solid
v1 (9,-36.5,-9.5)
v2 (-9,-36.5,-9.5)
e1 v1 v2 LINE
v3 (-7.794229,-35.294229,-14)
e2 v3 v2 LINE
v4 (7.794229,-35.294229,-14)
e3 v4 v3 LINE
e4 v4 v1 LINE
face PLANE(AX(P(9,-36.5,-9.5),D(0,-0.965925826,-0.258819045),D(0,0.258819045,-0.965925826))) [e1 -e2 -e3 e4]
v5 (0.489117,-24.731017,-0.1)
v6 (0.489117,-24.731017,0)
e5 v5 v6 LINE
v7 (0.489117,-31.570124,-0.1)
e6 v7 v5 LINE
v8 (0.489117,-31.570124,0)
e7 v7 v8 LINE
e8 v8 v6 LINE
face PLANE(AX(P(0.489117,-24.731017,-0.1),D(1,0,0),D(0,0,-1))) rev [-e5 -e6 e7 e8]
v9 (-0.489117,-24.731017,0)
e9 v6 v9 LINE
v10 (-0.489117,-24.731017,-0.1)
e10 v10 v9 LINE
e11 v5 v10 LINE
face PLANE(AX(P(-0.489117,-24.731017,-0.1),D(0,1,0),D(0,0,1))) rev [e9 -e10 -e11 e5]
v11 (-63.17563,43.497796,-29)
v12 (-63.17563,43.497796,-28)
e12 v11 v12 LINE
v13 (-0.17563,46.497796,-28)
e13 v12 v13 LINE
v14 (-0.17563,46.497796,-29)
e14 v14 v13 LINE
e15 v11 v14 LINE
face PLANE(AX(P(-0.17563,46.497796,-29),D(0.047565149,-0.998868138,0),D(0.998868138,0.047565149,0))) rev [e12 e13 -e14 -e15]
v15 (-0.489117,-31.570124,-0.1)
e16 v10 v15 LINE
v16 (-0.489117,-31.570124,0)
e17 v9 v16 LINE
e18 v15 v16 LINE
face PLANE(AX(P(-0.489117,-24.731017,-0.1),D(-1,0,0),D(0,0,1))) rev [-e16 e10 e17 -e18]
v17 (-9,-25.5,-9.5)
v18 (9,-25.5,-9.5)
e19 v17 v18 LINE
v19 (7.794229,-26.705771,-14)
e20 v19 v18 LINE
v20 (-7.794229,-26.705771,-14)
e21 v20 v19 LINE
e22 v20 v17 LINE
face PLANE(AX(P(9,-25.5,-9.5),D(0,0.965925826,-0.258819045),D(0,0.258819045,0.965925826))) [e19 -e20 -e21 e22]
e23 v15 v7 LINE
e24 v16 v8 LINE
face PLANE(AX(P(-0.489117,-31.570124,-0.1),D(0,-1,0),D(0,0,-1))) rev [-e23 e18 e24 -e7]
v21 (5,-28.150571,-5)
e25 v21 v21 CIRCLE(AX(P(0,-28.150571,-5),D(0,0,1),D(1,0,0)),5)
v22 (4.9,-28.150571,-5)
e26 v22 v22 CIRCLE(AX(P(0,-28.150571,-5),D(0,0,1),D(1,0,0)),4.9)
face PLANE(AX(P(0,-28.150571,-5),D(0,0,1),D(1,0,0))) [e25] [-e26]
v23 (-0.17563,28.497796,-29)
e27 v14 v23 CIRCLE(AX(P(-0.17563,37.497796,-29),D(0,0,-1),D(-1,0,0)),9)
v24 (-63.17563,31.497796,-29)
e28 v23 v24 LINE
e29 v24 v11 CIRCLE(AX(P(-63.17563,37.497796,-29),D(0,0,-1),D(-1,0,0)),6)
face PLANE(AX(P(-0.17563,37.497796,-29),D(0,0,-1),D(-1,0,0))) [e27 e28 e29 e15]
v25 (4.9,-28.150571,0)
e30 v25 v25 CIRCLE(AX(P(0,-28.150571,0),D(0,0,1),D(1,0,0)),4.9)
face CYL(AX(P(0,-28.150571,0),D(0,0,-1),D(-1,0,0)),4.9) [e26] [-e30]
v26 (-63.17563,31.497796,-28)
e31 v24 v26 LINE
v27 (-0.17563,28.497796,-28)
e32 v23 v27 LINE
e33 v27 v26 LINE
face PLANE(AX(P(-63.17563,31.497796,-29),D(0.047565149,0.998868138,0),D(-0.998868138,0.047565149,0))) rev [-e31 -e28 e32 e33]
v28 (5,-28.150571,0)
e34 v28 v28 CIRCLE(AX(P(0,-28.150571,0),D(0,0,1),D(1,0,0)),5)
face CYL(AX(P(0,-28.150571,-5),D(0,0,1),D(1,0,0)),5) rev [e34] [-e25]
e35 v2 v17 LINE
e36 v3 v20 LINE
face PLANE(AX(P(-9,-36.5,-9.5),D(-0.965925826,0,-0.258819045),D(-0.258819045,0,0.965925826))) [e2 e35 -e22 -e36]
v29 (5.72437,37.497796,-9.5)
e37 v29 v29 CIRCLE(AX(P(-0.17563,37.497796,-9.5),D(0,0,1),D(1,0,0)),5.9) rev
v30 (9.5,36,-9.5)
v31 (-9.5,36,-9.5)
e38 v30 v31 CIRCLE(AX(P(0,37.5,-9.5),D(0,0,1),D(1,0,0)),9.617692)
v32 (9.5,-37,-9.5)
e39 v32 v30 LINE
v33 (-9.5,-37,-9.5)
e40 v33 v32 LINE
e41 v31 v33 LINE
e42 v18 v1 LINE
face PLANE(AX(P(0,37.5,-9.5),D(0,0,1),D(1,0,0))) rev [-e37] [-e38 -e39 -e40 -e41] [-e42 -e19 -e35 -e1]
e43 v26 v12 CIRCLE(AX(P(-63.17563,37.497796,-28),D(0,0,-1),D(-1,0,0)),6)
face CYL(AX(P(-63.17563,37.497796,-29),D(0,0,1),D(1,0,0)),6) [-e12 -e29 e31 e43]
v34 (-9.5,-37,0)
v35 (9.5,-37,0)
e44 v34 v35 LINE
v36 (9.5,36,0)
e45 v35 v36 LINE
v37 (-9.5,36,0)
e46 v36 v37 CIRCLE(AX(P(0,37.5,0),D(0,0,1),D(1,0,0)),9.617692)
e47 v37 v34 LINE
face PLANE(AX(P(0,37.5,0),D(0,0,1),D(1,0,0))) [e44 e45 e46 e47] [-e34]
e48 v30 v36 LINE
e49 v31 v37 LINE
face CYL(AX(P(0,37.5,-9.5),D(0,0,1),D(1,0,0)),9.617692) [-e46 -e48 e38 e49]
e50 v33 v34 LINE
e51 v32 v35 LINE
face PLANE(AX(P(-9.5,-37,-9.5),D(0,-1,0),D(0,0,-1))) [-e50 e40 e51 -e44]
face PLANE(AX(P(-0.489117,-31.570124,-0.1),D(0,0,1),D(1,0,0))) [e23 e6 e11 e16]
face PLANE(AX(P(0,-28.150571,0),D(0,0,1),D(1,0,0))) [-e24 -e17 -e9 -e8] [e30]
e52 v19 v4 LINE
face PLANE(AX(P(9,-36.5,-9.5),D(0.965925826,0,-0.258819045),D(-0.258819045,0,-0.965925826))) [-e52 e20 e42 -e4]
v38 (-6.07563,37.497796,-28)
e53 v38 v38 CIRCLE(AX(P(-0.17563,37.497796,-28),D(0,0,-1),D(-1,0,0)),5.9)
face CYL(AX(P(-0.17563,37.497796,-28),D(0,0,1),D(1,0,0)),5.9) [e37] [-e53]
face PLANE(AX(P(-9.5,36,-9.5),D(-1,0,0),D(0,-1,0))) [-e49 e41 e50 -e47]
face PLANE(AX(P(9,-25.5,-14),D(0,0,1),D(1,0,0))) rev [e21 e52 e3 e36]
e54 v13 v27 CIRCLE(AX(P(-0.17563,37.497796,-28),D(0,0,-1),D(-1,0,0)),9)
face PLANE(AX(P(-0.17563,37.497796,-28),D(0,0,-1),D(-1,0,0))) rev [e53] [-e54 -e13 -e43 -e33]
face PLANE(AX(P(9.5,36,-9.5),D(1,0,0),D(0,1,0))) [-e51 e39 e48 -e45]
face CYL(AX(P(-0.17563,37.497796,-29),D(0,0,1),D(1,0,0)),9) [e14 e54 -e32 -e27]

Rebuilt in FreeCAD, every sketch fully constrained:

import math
import FreeCAD as App
import Part
import Sketcher

V = App.Vector

doc = App.newDocument("Part")
body = doc.addObject("PartDesign::Body", "Body")

sketch1 = doc.addObject("Sketcher::SketchObject", "Sketch")
body.addObject(sketch1)
sketch1.AttachmentSupport = (doc.XY_Plane, [""])
sketch1.MapMode = "FlatFace"
sketch1.addGeometry(Part.LineSegment(V(-9.5, 36, 0), V(-9.5, -37, 0)), False)
sketch1.addGeometry(Part.LineSegment(V(-9.5, -37, 0), V(9.5, -37, 0)), False)
sketch1.addGeometry(Part.LineSegment(V(9.5, -37, 0), V(9.5, 36, 0)), False)
sketch1.addGeometry(Part.ArcOfCircle(Part.Circle(V(0, 37.5, 0), V(0, 0, 1), 9.617692), math.radians(-8.972627), math.radians(188.972627)), False)
sketch1.addConstraint(Sketcher.Constraint("Coincident", 0, 2, 1, 1))
sketch1.addConstraint(Sketcher.Constraint("Coincident", 1, 2, 2, 1))
sketch1.addConstraint(Sketcher.Constraint("Coincident", 2, 2, 3, 1))
sketch1.addConstraint(Sketcher.Constraint("Coincident", 3, 2, 0, 1))
sketch1.addConstraint(Sketcher.Constraint("Vertical", 0))
sketch1.addConstraint(Sketcher.Constraint("Horizontal", 1))
sketch1.addConstraint(Sketcher.Constraint("Vertical", 2))
sketch1.addConstraint(Sketcher.Constraint("Symmetric", 2, 2, 3, 2, -2))
sketch1.addConstraint(Sketcher.Constraint("DistanceX", 1, 1, 1, 2, 19.0))
sketch1.addConstraint(Sketcher.Constraint("DistanceY", 0, 2, 0, 1, 73.0))
sketch1.addConstraint(Sketcher.Constraint("DistanceY", 0, 2, -1, 1, 37.0))
sketch1.addConstraint(Sketcher.Constraint("DistanceY", -1, 1, 3, 3, 37.5))
pad1 = doc.addObject("PartDesign::Pad", "Pad")
body.addObject(pad1)
pad1.Profile = sketch1
pad1.Length = 9.5
pad1.Reversed = True

sketch2 = doc.addObject("Sketcher::SketchObject", "Sketch001")
body.addObject(sketch2)
sketch2.AttachmentSupport = (doc.XY_Plane, [""])
sketch2.MapMode = "FlatFace"
sketch2.AttachmentOffset = App.Placement(V(0, 0, -9.5), App.Rotation())
sketch2.addGeometry(Part.LineSegment(V(9, -25.5, 0), V(9, -36.5, 0)), False)
sketch2.addGeometry(Part.LineSegment(V(9, -36.5, 0), V(-9, -36.5, 0)), False)
sketch2.addGeometry(Part.LineSegment(V(-9, -36.5, 0), V(-9, -25.5, 0)), False)
sketch2.addGeometry(Part.LineSegment(V(-9, -25.5, 0), V(9, -25.5, 0)), False)
sketch2.addConstraint(Sketcher.Constraint("Coincident", 0, 2, 1, 1))
sketch2.addConstraint(Sketcher.Constraint("Coincident", 1, 2, 2, 1))
sketch2.addConstraint(Sketcher.Constraint("Coincident", 2, 2, 3, 1))
sketch2.addConstraint(Sketcher.Constraint("Coincident", 3, 2, 0, 1))
sketch2.addConstraint(Sketcher.Constraint("Vertical", 0))
sketch2.addConstraint(Sketcher.Constraint("Horizontal", 1))
sketch2.addConstraint(Sketcher.Constraint("Vertical", 2))
sketch2.addConstraint(Sketcher.Constraint("Horizontal", 3))
sketch2.addConstraint(Sketcher.Constraint("DistanceX", 1, 2, 1, 1, 18.0))
sketch2.addConstraint(Sketcher.Constraint("DistanceY", 0, 2, 0, 1, 11.0))
sketch2.addConstraint(Sketcher.Constraint("DistanceX", -1, 1, 0, 2, 9.0))
sketch2.addConstraint(Sketcher.Constraint("DistanceY", 0, 2, -1, 1, 36.5))
pad2 = doc.addObject("PartDesign::Pad", "Pad001")
body.addObject(pad2)
pad2.Profile = sketch2
pad2.Length = 4.5
pad2.Reversed = True
pad2.TaperAngle = -15

sketch3 = doc.addObject("Sketcher::SketchObject", "Sketch002")
body.addObject(sketch3)
sketch3.AttachmentSupport = (doc.XY_Plane, [""])
sketch3.MapMode = "FlatFace"
sketch3.addGeometry(Part.Circle(V(0, -28.150571, 0), V(0, 0, 1), 5), False)
sketch3.addConstraint(Sketcher.Constraint("PointOnObject", 0, 3, -2))
sketch3.addConstraint(Sketcher.Constraint("Diameter", 0, 10.0))
sketch3.addConstraint(Sketcher.Constraint("DistanceY", 0, 3, -1, 1, 28.150571))
pocket1 = doc.addObject("PartDesign::Pocket", "Pocket")
body.addObject(pocket1)
pocket1.Profile = sketch3
pocket1.Length = 5

sketch4 = doc.addObject("Sketcher::SketchObject", "Sketch003")
body.addObject(sketch4)
sketch4.AttachmentSupport = (doc.XY_Plane, [""])
sketch4.MapMode = "FlatFace"
sketch4.AttachmentOffset = App.Placement(V(0, 0, -5), App.Rotation())
sketch4.addGeometry(Part.Circle(V(0, -28.150571, 0), V(0, 0, 1), 4.9), False)
sketch4.addConstraint(Sketcher.Constraint("PointOnObject", 0, 3, -2))
sketch4.addConstraint(Sketcher.Constraint("Diameter", 0, 9.8))
sketch4.addConstraint(Sketcher.Constraint("DistanceY", 0, 3, -1, 1, 28.150571))
pad3 = doc.addObject("PartDesign::Pad", "Pad002")
body.addObject(pad3)
pad3.Profile = sketch4
pad3.Length = 5

sketch5 = doc.addObject("Sketcher::SketchObject", "Sketch004")
body.addObject(sketch5)
sketch5.AttachmentSupport = (doc.XY_Plane, [""])
sketch5.MapMode = "FlatFace"
sketch5.addGeometry(Part.LineSegment(V(-0.489117, -24.731017, 0), V(-0.489117, -31.570124, 0)), False)
sketch5.addGeometry(Part.LineSegment(V(-0.489117, -31.570124, 0), V(0.489117, -31.570124, 0)), False)
sketch5.addGeometry(Part.LineSegment(V(0.489117, -31.570124, 0), V(0.489117, -24.731017, 0)), False)
sketch5.addGeometry(Part.LineSegment(V(0.489117, -24.731017, 0), V(-0.489117, -24.731017, 0)), False)
sketch5.addConstraint(Sketcher.Constraint("Coincident", 0, 2, 1, 1))
sketch5.addConstraint(Sketcher.Constraint("Coincident", 1, 2, 2, 1))
sketch5.addConstraint(Sketcher.Constraint("Coincident", 2, 2, 3, 1))
sketch5.addConstraint(Sketcher.Constraint("Coincident", 3, 2, 0, 1))
sketch5.addConstraint(Sketcher.Constraint("Vertical", 0))
sketch5.addConstraint(Sketcher.Constraint("Horizontal", 1))
sketch5.addConstraint(Sketcher.Constraint("Vertical", 2))
sketch5.addConstraint(Sketcher.Constraint("Horizontal", 3))
sketch5.addConstraint(Sketcher.Constraint("DistanceX", 1, 1, 1, 2, 0.978235))
sketch5.addConstraint(Sketcher.Constraint("DistanceY", 0, 2, 0, 1, 6.839107))
sketch5.addConstraint(Sketcher.Constraint("DistanceX", 0, 2, -1, 1, 0.489117))
sketch5.addConstraint(Sketcher.Constraint("DistanceY", 0, 2, -1, 1, 31.570124))
pocket2 = doc.addObject("PartDesign::Pocket", "Pocket001")
body.addObject(pocket2)
pocket2.Profile = sketch5
pocket2.Length = 0.1

sketch6 = doc.addObject("Sketcher::SketchObject", "Sketch005")
body.addObject(sketch6)
sketch6.AttachmentSupport = (doc.XY_Plane, [""])
sketch6.MapMode = "FlatFace"
sketch6.AttachmentOffset = App.Placement(V(0, 0, -9.5), App.Rotation())
sketch6.addGeometry(Part.Circle(V(-0.17563, 37.497796, 0), V(0, 0, 1), 5.9), False)
sketch6.addConstraint(Sketcher.Constraint("Diameter", 0, 11.8))
sketch6.addConstraint(Sketcher.Constraint("DistanceX", 0, 3, -1, 1, 0.17563))
sketch6.addConstraint(Sketcher.Constraint("DistanceY", -1, 1, 0, 3, 37.497796))
pad4 = doc.addObject("PartDesign::Pad", "Pad003")
body.addObject(pad4)
pad4.Profile = sketch6
pad4.Length = 18.5
pad4.Reversed = True

sketch7 = doc.addObject("Sketcher::SketchObject", "Sketch006")
body.addObject(sketch7)
sketch7.AttachmentSupport = (doc.XY_Plane, [""])
sketch7.MapMode = "FlatFace"
sketch7.AttachmentOffset = App.Placement(V(0, 0, -28), App.Rotation())
sketch7.addGeometry(Part.LineSegment(V(-63.17563, 43.497796, 0), V(-0.17563, 46.497796, 0)), False)
sketch7.addGeometry(Part.ArcOfCircle(Part.Circle(V(-0.17563, 37.497796, 0), V(0, 0, 1), 9), math.radians(-90), math.radians(90)), False)
sketch7.addGeometry(Part.LineSegment(V(-0.17563, 28.497796, 0), V(-63.17563, 31.497796, 0)), False)
sketch7.addGeometry(Part.ArcOfCircle(Part.Circle(V(-63.17563, 37.497796, 0), V(0, 0, 1), 6), math.radians(90), math.radians(270)), False)
sketch7.addConstraint(Sketcher.Constraint("Coincident", 0, 2, 1, 2))
sketch7.addConstraint(Sketcher.Constraint("Coincident", 1, 1, 2, 1))
sketch7.addConstraint(Sketcher.Constraint("Coincident", 2, 2, 3, 2))
sketch7.addConstraint(Sketcher.Constraint("Coincident", 3, 1, 0, 1))
sketch7.addConstraint(Sketcher.Constraint("Horizontal", 1, 3, 3, 3))
sketch7.addConstraint(Sketcher.Constraint("Vertical", 1, 3, 0, 2))
sketch7.addConstraint(Sketcher.Constraint("Vertical", 0, 2, 1, 1))
sketch7.addConstraint(Sketcher.Constraint("Vertical", 3, 3, 2, 2))
sketch7.addConstraint(Sketcher.Constraint("Vertical", 2, 2, 3, 1))
sketch7.addConstraint(Sketcher.Constraint("Radius", 1, 9.0))
sketch7.addConstraint(Sketcher.Constraint("Radius", 3, 6.0))
sketch7.addConstraint(Sketcher.Constraint("DistanceX", 3, 3, 1, 3, 63.0))
sketch7.addConstraint(Sketcher.Constraint("DistanceX", 1, 3, -1, 1, 0.17563))
sketch7.addConstraint(Sketcher.Constraint("DistanceY", -1, 1, 1, 3, 37.497796))
pad5 = doc.addObject("PartDesign::Pad", "Pad004")
body.addObject(pad5)
pad5.Profile = sketch7
pad5.Length = 1
pad5.Reversed = True

doc.recompute()
